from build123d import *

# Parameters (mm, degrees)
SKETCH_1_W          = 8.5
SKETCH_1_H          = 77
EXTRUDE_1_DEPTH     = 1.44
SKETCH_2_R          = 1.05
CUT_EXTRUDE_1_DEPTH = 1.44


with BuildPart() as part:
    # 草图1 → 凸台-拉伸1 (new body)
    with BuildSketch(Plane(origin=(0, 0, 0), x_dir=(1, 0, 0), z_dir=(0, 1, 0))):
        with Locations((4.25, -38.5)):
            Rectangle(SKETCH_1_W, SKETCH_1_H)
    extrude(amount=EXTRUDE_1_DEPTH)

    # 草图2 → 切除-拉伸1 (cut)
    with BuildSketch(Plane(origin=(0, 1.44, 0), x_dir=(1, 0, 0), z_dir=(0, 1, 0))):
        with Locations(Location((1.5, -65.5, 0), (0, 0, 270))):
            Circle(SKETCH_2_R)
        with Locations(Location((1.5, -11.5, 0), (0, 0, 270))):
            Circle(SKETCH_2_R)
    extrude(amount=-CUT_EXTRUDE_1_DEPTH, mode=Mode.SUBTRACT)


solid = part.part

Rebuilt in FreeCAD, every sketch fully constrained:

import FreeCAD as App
import Part
import Sketcher
from FreeCAD import Vector
Q = App.Units.Quantity

doc = App.newDocument("Part")
body = doc.addObject("PartDesign::Body", "Body")

# Sketch on XZ plane
sketch1 = body.newObject("Sketcher::SketchObject", "Sketch")
sketch1.AttachmentSupport = (doc.getObject("XZ_Plane"), [""])
sketch1.MapMode = "FlatFace"
sketch1.addGeometry(Part.LineSegment(Vector(0, 0, 0), Vector(0, 77, 0)), False)
sketch1.addGeometry(Part.LineSegment(Vector(0, 77, 0), Vector(8.5, 77, 0)), False)
sketch1.addGeometry(Part.LineSegment(Vector(8.5, 77, 0), Vector(8.5, 0, 0)), False)
sketch1.addGeometry(Part.LineSegment(Vector(8.5, 0, 0), Vector(0, 0, 0)), False)
sketch1.addConstraint(Sketcher.Constraint("Coincident", 0, 2, 1, 1))
sketch1.addConstraint(Sketcher.Constraint("Coincident", 1, 2, 2, 1))
sketch1.addConstraint(Sketcher.Constraint("Coincident", 2, 2, 3, 1))
sketch1.addConstraint(Sketcher.Constraint("Coincident", 3, 2, 0, 1))
sketch1.addConstraint(Sketcher.Constraint("Vertical", 0))
sketch1.addConstraint(Sketcher.Constraint("Horizontal", 1))
sketch1.addConstraint(Sketcher.Constraint("Vertical", 2))
sketch1.addConstraint(Sketcher.Constraint("Horizontal", 3))
sketch1.addConstraint(Sketcher.Constraint("Coincident", 3, 2, -1, 1))
sketch1.addConstraint(Sketcher.Constraint("DistanceY", 0, 1, 0, 2, Q("77 mm")))
sketch1.addConstraint(Sketcher.Constraint("DistanceX", 1, 1, 1, 2, Q("8.5 mm")))
pad1 = body.newObject("PartDesign::Pad", "Pad")
pad1.Profile = sketch1
pad1.Length = 1.44
pad1.Reversed = True

# Sketch on XZ plane
sketch2 = body.newObject("Sketcher::SketchObject", "Sketch001")
sketch2.AttachmentSupport = (doc.getObject("XZ_Plane"), [""])
sketch2.MapMode = "FlatFace"
sketch2.AttachmentOffset = App.Placement(Vector(0, 0, -1.44), App.Rotation())
sketch2.addGeometry(Part.Circle(Vector(1.5, 65.5, 0), Vector(0, 0, 1), 1.05), False)
sketch2.addGeometry(Part.Circle(Vector(1.5, 11.5, 0), Vector(0, 0, 1), 1.05), False)
sketch2.addConstraint(Sketcher.Constraint("Equal", 0, 1))
sketch2.addConstraint(Sketcher.Constraint("Vertical", 0, 3, 1, 3))
sketch2.addConstraint(Sketcher.Constraint("Diameter", 0, Q("2.1 mm")))
sketch2.addConstraint(Sketcher.Constraint("DistanceY", 1, 3, 0, 3, Q("54 mm")))
sketch2.addConstraint(Sketcher.Constraint("DistanceX", -1, 1, 0, 3, Q("1.5 mm")))
sketch2.addConstraint(Sketcher.Constraint("DistanceY", -1, 1, 0, 3, Q("65.5 mm")))
pocket1 = body.newObject("PartDesign::Pocket", "Pocket")
pocket1.Profile = sketch2
pocket1.Length = 1.44
pocket1.Reversed = True

doc.recompute()
